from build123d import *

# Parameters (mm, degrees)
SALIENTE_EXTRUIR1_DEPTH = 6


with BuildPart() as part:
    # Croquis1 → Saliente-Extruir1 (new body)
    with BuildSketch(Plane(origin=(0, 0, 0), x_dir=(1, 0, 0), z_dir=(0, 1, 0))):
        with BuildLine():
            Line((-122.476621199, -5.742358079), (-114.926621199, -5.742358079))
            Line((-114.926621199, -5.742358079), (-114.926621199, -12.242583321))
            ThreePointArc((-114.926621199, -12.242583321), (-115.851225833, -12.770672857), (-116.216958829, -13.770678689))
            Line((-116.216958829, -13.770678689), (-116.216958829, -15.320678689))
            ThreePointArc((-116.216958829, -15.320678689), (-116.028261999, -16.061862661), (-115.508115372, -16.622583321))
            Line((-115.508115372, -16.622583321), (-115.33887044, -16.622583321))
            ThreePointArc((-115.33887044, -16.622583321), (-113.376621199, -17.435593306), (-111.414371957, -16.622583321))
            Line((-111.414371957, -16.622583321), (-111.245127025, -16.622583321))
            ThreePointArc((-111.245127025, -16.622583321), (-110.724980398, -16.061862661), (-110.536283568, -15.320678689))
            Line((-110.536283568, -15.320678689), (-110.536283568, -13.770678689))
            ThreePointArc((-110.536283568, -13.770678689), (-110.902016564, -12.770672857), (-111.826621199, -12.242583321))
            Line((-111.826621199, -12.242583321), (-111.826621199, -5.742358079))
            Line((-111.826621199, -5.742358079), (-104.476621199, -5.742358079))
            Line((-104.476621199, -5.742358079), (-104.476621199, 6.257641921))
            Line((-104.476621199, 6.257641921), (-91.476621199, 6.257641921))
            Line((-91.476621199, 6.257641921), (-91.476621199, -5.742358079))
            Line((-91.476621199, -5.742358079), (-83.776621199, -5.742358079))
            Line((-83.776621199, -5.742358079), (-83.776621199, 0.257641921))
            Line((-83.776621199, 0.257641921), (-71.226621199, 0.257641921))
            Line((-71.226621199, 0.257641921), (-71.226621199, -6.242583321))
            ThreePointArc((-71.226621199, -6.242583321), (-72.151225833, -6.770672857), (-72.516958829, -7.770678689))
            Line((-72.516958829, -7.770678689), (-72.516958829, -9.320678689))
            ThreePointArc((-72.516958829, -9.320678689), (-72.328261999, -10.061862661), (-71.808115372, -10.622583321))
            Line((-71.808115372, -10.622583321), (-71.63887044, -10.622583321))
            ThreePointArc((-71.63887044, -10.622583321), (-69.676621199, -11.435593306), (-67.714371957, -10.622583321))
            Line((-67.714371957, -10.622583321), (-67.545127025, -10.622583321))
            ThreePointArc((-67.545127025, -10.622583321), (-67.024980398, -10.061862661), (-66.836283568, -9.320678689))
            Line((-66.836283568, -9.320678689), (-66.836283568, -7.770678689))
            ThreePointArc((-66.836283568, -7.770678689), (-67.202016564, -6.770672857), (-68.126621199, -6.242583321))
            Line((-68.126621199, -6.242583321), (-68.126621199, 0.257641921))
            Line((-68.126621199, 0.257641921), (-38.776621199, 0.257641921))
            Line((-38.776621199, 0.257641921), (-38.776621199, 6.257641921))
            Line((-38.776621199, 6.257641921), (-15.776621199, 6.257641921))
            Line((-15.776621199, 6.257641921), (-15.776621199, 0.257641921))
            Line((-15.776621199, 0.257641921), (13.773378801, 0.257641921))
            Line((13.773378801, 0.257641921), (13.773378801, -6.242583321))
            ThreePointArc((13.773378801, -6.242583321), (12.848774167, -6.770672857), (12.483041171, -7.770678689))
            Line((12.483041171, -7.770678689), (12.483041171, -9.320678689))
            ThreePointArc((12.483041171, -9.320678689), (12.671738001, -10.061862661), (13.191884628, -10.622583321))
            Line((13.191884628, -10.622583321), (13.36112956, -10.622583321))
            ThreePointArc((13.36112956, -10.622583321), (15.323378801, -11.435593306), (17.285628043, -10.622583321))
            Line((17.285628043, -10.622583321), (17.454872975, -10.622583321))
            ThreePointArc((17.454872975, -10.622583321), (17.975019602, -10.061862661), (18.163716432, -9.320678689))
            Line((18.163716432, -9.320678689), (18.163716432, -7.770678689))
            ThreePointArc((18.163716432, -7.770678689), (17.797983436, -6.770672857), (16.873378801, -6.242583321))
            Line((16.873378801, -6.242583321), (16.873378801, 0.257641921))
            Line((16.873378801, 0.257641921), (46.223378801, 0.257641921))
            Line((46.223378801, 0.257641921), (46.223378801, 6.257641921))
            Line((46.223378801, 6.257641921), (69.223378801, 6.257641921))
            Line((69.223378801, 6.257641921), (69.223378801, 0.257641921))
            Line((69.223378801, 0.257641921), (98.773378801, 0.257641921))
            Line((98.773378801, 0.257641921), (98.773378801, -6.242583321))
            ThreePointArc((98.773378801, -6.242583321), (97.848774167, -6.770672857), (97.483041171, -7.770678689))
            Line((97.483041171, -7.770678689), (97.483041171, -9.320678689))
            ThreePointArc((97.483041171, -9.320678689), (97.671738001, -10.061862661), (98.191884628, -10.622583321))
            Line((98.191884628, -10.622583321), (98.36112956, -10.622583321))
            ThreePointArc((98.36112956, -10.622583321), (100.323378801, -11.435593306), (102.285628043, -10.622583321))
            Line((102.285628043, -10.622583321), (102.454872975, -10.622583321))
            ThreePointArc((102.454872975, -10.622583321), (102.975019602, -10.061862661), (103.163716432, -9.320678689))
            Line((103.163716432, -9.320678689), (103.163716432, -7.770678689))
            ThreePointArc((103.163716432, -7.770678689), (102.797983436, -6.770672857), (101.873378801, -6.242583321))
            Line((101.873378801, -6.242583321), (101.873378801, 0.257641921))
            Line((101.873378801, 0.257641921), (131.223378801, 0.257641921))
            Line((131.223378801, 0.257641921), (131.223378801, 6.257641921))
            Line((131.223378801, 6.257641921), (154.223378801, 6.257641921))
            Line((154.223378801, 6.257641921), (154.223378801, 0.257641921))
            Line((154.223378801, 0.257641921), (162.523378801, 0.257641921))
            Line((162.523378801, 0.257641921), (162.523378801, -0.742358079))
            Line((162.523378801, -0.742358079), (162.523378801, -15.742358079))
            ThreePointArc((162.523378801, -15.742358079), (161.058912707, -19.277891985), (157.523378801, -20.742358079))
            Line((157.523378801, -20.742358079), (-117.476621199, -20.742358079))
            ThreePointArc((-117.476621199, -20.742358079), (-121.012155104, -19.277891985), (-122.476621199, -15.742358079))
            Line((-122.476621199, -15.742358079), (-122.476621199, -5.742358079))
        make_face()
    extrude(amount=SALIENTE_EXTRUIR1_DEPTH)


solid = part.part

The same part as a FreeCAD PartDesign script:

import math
import FreeCAD as App
import Part
import Sketcher

doc = App.newDocument("Part")
params = doc.addObject("Spreadsheet::Sheet", "Params")
for row, (alias, value) in enumerate([
    ("sketch1_radius", "5 mm"),
    ("sketch1_width", "275 mm"),
    ("sketch1_width2", "23 mm"),
    ("sketch1_width3", "13 mm"),
    ("sketch1_height", "10 mm"),
    ("pad1_length", "6 mm"),
], start=1):
    params.set(f"A{row}", alias)
    params.set(f"B{row}", "=" + value)
    params.setAlias(f"B{row}", alias)

body = doc.addObject("PartDesign::Body", "Body")

# Sketch on XZ plane
sketch1 = body.newObject("Sketcher::SketchObject", "Sketch")
sketch1.AttachmentSupport = (doc.getObject("XZ_Plane"), [""])
sketch1.MapMode = "FlatFace"
sketch1.addGeometry([
    Part.LineSegment(App.Vector(-114.926621, 5.742358, 0), App.Vector(-122.476621, 5.742358, 0)),  # 0
    Part.LineSegment(App.Vector(-122.476621, 5.742358, 0), App.Vector(-122.476621, 15.742358, 0)),  # 1
    Part.ArcOfCircle(Part.Circle(App.Vector(-117.476621, 15.742358, 0), App.Vector(0, 0, 1), 5), math.radians(90), math.radians(180)),  # 2
    Part.LineSegment(App.Vector(-117.476621, 20.742358, 0), App.Vector(157.523379, 20.742358, 0)),  # 3
    Part.ArcOfCircle(Part.Circle(App.Vector(157.523379, 15.742358, 0), App.Vector(0, 0, 1), 5), math.radians(0), math.radians(90)),  # 4
    Part.LineSegment(App.Vector(162.523379, 15.742358, 0), App.Vector(162.523379, -0.257642, 0)),  # 5
    Part.LineSegment(App.Vector(162.523379, -0.257642, 0), App.Vector(154.223379, -0.257642, 0)),  # 6
    Part.LineSegment(App.Vector(154.223379, -0.257642, 0), App.Vector(154.223379, -6.257642, 0)),  # 7
    Part.LineSegment(App.Vector(154.223379, -6.257642, 0), App.Vector(131.223379, -6.257642, 0)),  # 8
    Part.LineSegment(App.Vector(131.223379, -6.257642, 0), App.Vector(131.223379, -0.257642, 0)),  # 9
    Part.LineSegment(App.Vector(131.223379, -0.257642, 0), App.Vector(101.873379, -0.257642, 0)),  # 10
    Part.LineSegment(App.Vector(101.873379, -0.257642, 0), App.Vector(101.873379, 6.242583, 0)),  # 11
    Part.ArcOfCircle(Part.Circle(App.Vector(101.613716, 7.770679, 0), App.Vector(0, 0, 1), 1.55), math.radians(-80.356103), math.radians(0)),  # 12
    Part.LineSegment(App.Vector(103.163716, 7.770679, 0), App.Vector(103.163716, 9.320679, 0)),  # 13
    Part.ArcOfCircle(Part.Circle(App.Vector(101.613716, 9.320679, 0), App.Vector(0, 0, 1), 1.55), math.radians(0), math.radians(57.133623)),  # 14
    Part.LineSegment(App.Vector(102.454873, 10.622583, 0), App.Vector(102.285628, 10.622583, 0)),  # 15
    Part.ArcOfCircle(Part.Circle(App.Vector(100.323379, 8.661084, 0), App.Vector(0, 0, 1), 2.774509), math.radians(44.989047), math.radians(135.010953)),  # 16
    Part.LineSegment(App.Vector(98.36113, 10.622583, 0), App.Vector(98.191885, 10.622583, 0)),  # 17
    Part.ArcOfCircle(Part.Circle(App.Vector(99.033041, 9.320679, 0), App.Vector(0, 0, 1), 1.55), math.radians(122.866377), math.radians(180)),  # 18
    Part.LineSegment(App.Vector(97.483041, 9.320679, 0), App.Vector(97.483041, 7.770679, 0)),  # 19
    Part.ArcOfCircle(Part.Circle(App.Vector(99.033041, 7.770679, 0), App.Vector(0, 0, 1), 1.55), math.radians(180), math.radians(260.356103)),  # 20
    Part.LineSegment(App.Vector(98.773379, 6.242583, 0), App.Vector(98.773379, -0.257642, 0)),  # 21
    Part.LineSegment(App.Vector(98.773379, -0.257642, 0), App.Vector(69.223379, -0.257642, 0)),  # 22
    Part.LineSegment(App.Vector(69.223379, -0.257642, 0), App.Vector(69.223379, -6.257642, 0)),  # 23
    Part.LineSegment(App.Vector(69.223379, -6.257642, 0), App.Vector(46.223379, -6.257642, 0)),  # 24
    Part.LineSegment(App.Vector(46.223379, -6.257642, 0), App.Vector(46.223379, -0.257642, 0)),  # 25
    Part.LineSegment(App.Vector(46.223379, -0.257642, 0), App.Vector(16.873379, -0.257642, 0)),  # 26
    Part.LineSegment(App.Vector(16.873379, -0.257642, 0), App.Vector(16.873379, 6.242583, 0)),  # 27
    Part.ArcOfCircle(Part.Circle(App.Vector(16.613716, 7.770679, 0), App.Vector(0, 0, 1), 1.55), math.radians(-80.356103), math.radians(0)),  # 28
    Part.LineSegment(App.Vector(18.163716, 7.770679, 0), App.Vector(18.163716, 9.320679, 0)),  # 29
    Part.ArcOfCircle(Part.Circle(App.Vector(16.613716, 9.320679, 0), App.Vector(0, 0, 1), 1.55), math.radians(0), math.radians(57.133623)),  # 30
    Part.LineSegment(App.Vector(17.454873, 10.622583, 0), App.Vector(17.285628, 10.622583, 0)),  # 31
    Part.ArcOfCircle(Part.Circle(App.Vector(15.323379, 8.661084, 0), App.Vector(0, 0, 1), 2.774509), math.radians(44.989047), math.radians(135.010953)),  # 32
    Part.LineSegment(App.Vector(13.36113, 10.622583, 0), App.Vector(13.191885, 10.622583, 0)),  # 33
    Part.ArcOfCircle(Part.Circle(App.Vector(14.033041, 9.320679, 0), App.Vector(0, 0, 1), 1.55), math.radians(122.866377), math.radians(180)),  # 34
    Part.LineSegment(App.Vector(12.483041, 9.320679, 0), App.Vector(12.483041, 7.770679, 0)),  # 35
    Part.ArcOfCircle(Part.Circle(App.Vector(14.033041, 7.770679, 0), App.Vector(0, 0, 1), 1.55), math.radians(180), math.radians(260.356103)),  # 36
    Part.LineSegment(App.Vector(13.773379, 6.242583, 0), App.Vector(13.773379, -0.257642, 0)),  # 37
    Part.LineSegment(App.Vector(13.773379, -0.257642, 0), App.Vector(-15.776621, -0.257642, 0)),  # 38
    Part.LineSegment(App.Vector(-15.776621, -0.257642, 0), App.Vector(-15.776621, -6.257642, 0)),  # 39
    Part.LineSegment(App.Vector(-15.776621, -6.257642, 0), App.Vector(-38.776621, -6.257642, 0)),  # 40
    Part.LineSegment(App.Vector(-38.776621, -6.257642, 0), App.Vector(-38.776621, -0.257642, 0)),  # 41
    Part.LineSegment(App.Vector(-38.776621, -0.257642, 0), App.Vector(-68.126621, -0.257642, 0)),  # 42
    Part.LineSegment(App.Vector(-68.126621, -0.257642, 0), App.Vector(-68.126621, 6.242583, 0)),  # 43
    Part.ArcOfCircle(Part.Circle(App.Vector(-68.386284, 7.770679, 0), App.Vector(0, 0, 1), 1.55), math.radians(-80.356103), math.radians(0)),  # 44
    Part.LineSegment(App.Vector(-66.836284, 7.770679, 0), App.Vector(-66.836284, 9.320679, 0)),  # 45
    Part.ArcOfCircle(Part.Circle(App.Vector(-68.386284, 9.320679, 0), App.Vector(0, 0, 1), 1.55), math.radians(0), math.radians(57.133623)),  # 46
    Part.LineSegment(App.Vector(-67.545127, 10.622583, 0), App.Vector(-67.714372, 10.622583, 0)),  # 47
    Part.ArcOfCircle(Part.Circle(App.Vector(-69.676621, 8.661084, 0), App.Vector(0, 0, 1), 2.774509), math.radians(44.989047), math.radians(135.010953)),  # 48
    Part.LineSegment(App.Vector(-71.63887, 10.622583, 0), App.Vector(-71.808115, 10.622583, 0)),  # 49
    Part.ArcOfCircle(Part.Circle(App.Vector(-70.966959, 9.320679, 0), App.Vector(0, 0, 1), 1.55), math.radians(122.866377), math.radians(180)),  # 50
    Part.LineSegment(App.Vector(-72.516959, 9.320679, 0), App.Vector(-72.516959, 7.770679, 0)),  # 51
    Part.ArcOfCircle(Part.Circle(App.Vector(-70.966959, 7.770679, 0), App.Vector(0, 0, 1), 1.55), math.radians(180), math.radians(260.356103)),  # 52
    Part.LineSegment(App.Vector(-71.226621, 6.242583, 0), App.Vector(-71.226621, -0.257642, 0)),  # 53
    Part.LineSegment(App.Vector(-71.226621, -0.257642, 0), App.Vector(-83.776621, -0.257642, 0)),  # 54
    Part.LineSegment(App.Vector(-83.776621, -0.257642, 0), App.Vector(-83.776621, 5.742358, 0)),  # 55
    Part.LineSegment(App.Vector(-83.776621, 5.742358, 0), App.Vector(-91.476621, 5.742358, 0)),  # 56
    Part.LineSegment(App.Vector(-91.476621, 5.742358, 0), App.Vector(-91.476621, -6.257642, 0)),  # 57
    Part.LineSegment(App.Vector(-91.476621, -6.257642, 0), App.Vector(-104.476621, -6.257642, 0)),  # 58
    Part.LineSegment(App.Vector(-104.476621, -6.257642, 0), App.Vector(-104.476621, 5.742358, 0)),  # 59
    Part.LineSegment(App.Vector(-104.476621, 5.742358, 0), App.Vector(-111.826621, 5.742358, 0)),  # 60
    Part.LineSegment(App.Vector(-111.826621, 5.742358, 0), App.Vector(-111.826621, 12.242583, 0)),  # 61
    Part.ArcOfCircle(Part.Circle(App.Vector(-112.086284, 13.770679, 0), App.Vector(0, 0, 1), 1.55), math.radians(-80.356103), math.radians(0)),  # 62
    Part.LineSegment(App.Vector(-110.536284, 13.770679, 0), App.Vector(-110.536284, 15.320679, 0)),  # 63
    Part.ArcOfCircle(Part.Circle(App.Vector(-112.086284, 15.320679, 0), App.Vector(0, 0, 1), 1.55), math.radians(0), math.radians(57.133623)),  # 64
    Part.LineSegment(App.Vector(-111.245127, 16.622583, 0), App.Vector(-111.414372, 16.622583, 0)),  # 65
    Part.ArcOfCircle(Part.Circle(App.Vector(-113.376621, 14.661084, 0), App.Vector(0, 0, 1), 2.774509), math.radians(44.989047), math.radians(135.010953)),  # 66
    Part.LineSegment(App.Vector(-115.33887, 16.622583, 0), App.Vector(-115.508115, 16.622583, 0)),  # 67
    Part.ArcOfCircle(Part.Circle(App.Vector(-114.666959, 15.320679, 0), App.Vector(0, 0, 1), 1.55), math.radians(122.866377), math.radians(180)),  # 68
    Part.LineSegment(App.Vector(-116.216959, 15.320679, 0), App.Vector(-116.216959, 13.770679, 0)),  # 69
    Part.ArcOfCircle(Part.Circle(App.Vector(-114.666959, 13.770679, 0), App.Vector(0, 0, 1), 1.55), math.radians(180), math.radians(260.356103)),  # 70
    Part.LineSegment(App.Vector(-114.926621, 12.242583, 0), App.Vector(-114.926621, 5.742358, 0)),  # 71
], False)
sketch1.addConstraint([
    Sketcher.Constraint("Coincident", 0, 2, 1, 1),
    Sketcher.Constraint("Tangent", 1, 2, 2, 2),
    Sketcher.Constraint("Tangent", 2, 1, 3, 1),
    Sketcher.Constraint("Tangent", 3, 2, 4, 2),
    Sketcher.Constraint("Tangent", 4, 1, 5, 1),
    Sketcher.Constraint("Coincident", 5, 2, 6, 1),
    Sketcher.Constraint("Coincident", 6, 2, 7, 1),
    Sketcher.Constraint("Coincident", 7, 2, 8, 1),
    Sketcher.Constraint("Coincident", 8, 2, 9, 1),
    Sketcher.Constraint("Coincident", 9, 2, 10, 1),
    Sketcher.Constraint("Coincident", 10, 2, 11, 1),
    Sketcher.Constraint("Coincident", 11, 2, 12, 1),
    Sketcher.Constraint("Tangent", 12, 2, 13, 1),
    Sketcher.Constraint("Tangent", 13, 2, 14, 1),
    Sketcher.Constraint("Coincident", 14, 2, 15, 1),
    Sketcher.Constraint("Coincident", 15, 2, 16, 1),
    Sketcher.Constraint("Coincident", 16, 2, 17, 1),
    Sketcher.Constraint("Coincident", 17, 2, 18, 1),
    Sketcher.Constraint("Tangent", 18, 2, 19, 1),
    Sketcher.Constraint("Tangent", 19, 2, 20, 1),
    Sketcher.Constraint("Coincident", 20, 2, 21, 1),
    Sketcher.Constraint("Coincident", 21, 2, 22, 1),
    Sketcher.Constraint("Coincident", 22, 2, 23, 1),
    Sketcher.Constraint("Coincident", 23, 2, 24, 1),
    Sketcher.Constraint("Coincident", 24, 2, 25, 1),
    Sketcher.Constraint("Coincident", 25, 2, 26, 1),
    Sketcher.Constraint("Coincident", 26, 2, 27, 1),
    Sketcher.Constraint("Coincident", 27, 2, 28, 1),
    Sketcher.Constraint("Tangent", 28, 2, 29, 1),
    Sketcher.Constraint("Tangent", 29, 2, 30, 1),
    Sketcher.Constraint("Coincident", 30, 2, 31, 1),
    Sketcher.Constraint("Coincident", 31, 2, 32, 1),
    Sketcher.Constraint("Coincident", 32, 2, 33, 1),
    Sketcher.Constraint("Coincident", 33, 2, 34, 1),
    Sketcher.Constraint("Tangent", 34, 2, 35, 1),
    Sketcher.Constraint("Tangent", 35, 2, 36, 1),
    Sketcher.Constraint("Coincident", 36, 2, 37, 1),
    Sketcher.Constraint("Coincident", 37, 2, 38, 1),
    Sketcher.Constraint("Coincident", 38, 2, 39, 1),
    Sketcher.Constraint("Coincident", 39, 2, 40, 1),
    Sketcher.Constraint("Coincident", 40, 2, 41, 1),
    Sketcher.Constraint("Coincident", 41, 2, 42, 1),
    Sketcher.Constraint("Coincident", 42, 2, 43, 1),
    Sketcher.Constraint("Coincident", 43, 2, 44, 1),
    Sketcher.Constraint("Tangent", 44, 2, 45, 1),
    Sketcher.Constraint("Tangent", 45, 2, 46, 1),
    Sketcher.Constraint("Coincident", 46, 2, 47, 1),
    Sketcher.Constraint("Coincident", 47, 2, 48, 1),
    Sketcher.Constraint("Coincident", 48, 2, 49, 1),
    Sketcher.Constraint("Coincident", 49, 2, 50, 1),
    Sketcher.Constraint("Tangent", 50, 2, 51, 1),
    Sketcher.Constraint("Tangent", 51, 2, 52, 1),
    Sketcher.Constraint("Coincident", 52, 2, 53, 1),
    Sketcher.Constraint("Coincident", 53, 2, 54, 1),
    Sketcher.Constraint("Coincident", 54, 2, 55, 1),
    Sketcher.Constraint("Coincident", 55, 2, 56, 1),
    Sketcher.Constraint("Coincident", 56, 2, 57, 1),
    Sketcher.Constraint("Coincident", 57, 2, 58, 1),
    Sketcher.Constraint("Coincident", 58, 2, 59, 1),
    Sketcher.Constraint("Coincident", 59, 2, 60, 1),
    Sketcher.Constraint("Coincident", 60, 2, 61, 1),
    Sketcher.Constraint("Coincident", 61, 2, 62, 1),
    Sketcher.Constraint("Tangent", 62, 2, 63, 1),
    Sketcher.Constraint("Tangent", 63, 2, 64, 1),
    Sketcher.Constraint("Coincident", 64, 2, 65, 1),
    Sketcher.Constraint("Coincident", 65, 2, 66, 1),
    Sketcher.Constraint("Coincident", 66, 2, 67, 1),
    Sketcher.Constraint("Coincident", 67, 2, 68, 1),
    Sketcher.Constraint("Tangent", 68, 2, 69, 1),
    Sketcher.Constraint("Tangent", 69, 2, 70, 1),
    Sketcher.Constraint("Coincident", 70, 2, 71, 1),
    Sketcher.Constraint("Coincident", 71, 2, 0, 1),
    Sketcher.Constraint("Horizontal", 0),
    Sketcher.Constraint("Vertical", 1),
    Sketcher.Constraint("Horizontal", 3),
    Sketcher.Constraint("Vertical", 5),
    Sketcher.Constraint("Horizontal", 6),
    Sketcher.Constraint("Vertical", 7),
    Sketcher.Constraint("Horizontal", 8),
    Sketcher.Constraint("Vertical", 9),
    Sketcher.Constraint("Horizontal", 10),
    Sketcher.Constraint("Vertical", 11),
    Sketcher.Constraint("Vertical", 13),
    Sketcher.Constraint("Horizontal", 15),
    Sketcher.Constraint("Horizontal", 17),
    Sketcher.Constraint("Vertical", 19),
    Sketcher.Constraint("Vertical", 21),
    Sketcher.Constraint("Horizontal", 22),
    Sketcher.Constraint("Vertical", 23),
    Sketcher.Constraint("Horizontal", 24),
    Sketcher.Constraint("Vertical", 25),
    Sketcher.Constraint("Horizontal", 26),
    Sketcher.Constraint("Vertical", 27),
    Sketcher.Constraint("Vertical", 29),
    Sketcher.Constraint("Horizontal", 31),
    Sketcher.Constraint("Horizontal", 33),
    Sketcher.Constraint("Vertical", 35),
    Sketcher.Constraint("Vertical", 37),
    Sketcher.Constraint("Horizontal", 38),
    Sketcher.Constraint("Vertical", 39),
    Sketcher.Constraint("Horizontal", 40),
    Sketcher.Constraint("Vertical", 41),
    Sketcher.Constraint("Horizontal", 42),
    Sketcher.Constraint("Vertical", 43),
    Sketcher.Constraint("Vertical", 45),
    Sketcher.Constraint("Horizontal", 47),
    Sketcher.Constraint("Horizontal", 49),
    Sketcher.Constraint("Vertical", 51),
    Sketcher.Constraint("Vertical", 53),
    Sketcher.Constraint("Horizontal", 54),
    Sketcher.Constraint("Vertical", 55),
    Sketcher.Constraint("Horizontal", 56),
    Sketcher.Constraint("Vertical", 57),
    Sketcher.Constraint("Horizontal", 58),
    Sketcher.Constraint("Vertical", 59),
    Sketcher.Constraint("Horizontal", 60),
    Sketcher.Constraint("Vertical", 61),
    Sketcher.Constraint("Vertical", 63),
    Sketcher.Constraint("Horizontal", 65),
    Sketcher.Constraint("Horizontal", 67),
    Sketcher.Constraint("Vertical", 69),
    Sketcher.Constraint("Vertical", 71),
    Sketcher.Constraint("Equal", 2, 4),
    Sketcher.Constraint("Equal", 12, 14),
    Sketcher.Constraint("Equal", 14, 18),
    Sketcher.Constraint("Equal", 18, 20),
    Sketcher.Constraint("Equal", 20, 28),
    Sketcher.Constraint("Equal", 28, 30),
    Sketcher.Constraint("Equal", 16, 32),
    Sketcher.Constraint("Equal", 30, 34),
    Sketcher.Constraint("Equal", 34, 36),
    Sketcher.Constraint("Equal", 36, 44),
    Sketcher.Constraint("Equal", 44, 46),
    Sketcher.Constraint("Equal", 32, 48),
    Sketcher.Constraint("Equal", 46, 50),
    Sketcher.Constraint("Equal", 50, 52),
    Sketcher.Constraint("Equal", 52, 62),
    Sketcher.Constraint("Equal", 62, 64),
    Sketcher.Constraint("Equal", 48, 66),
    Sketcher.Constraint("Equal", 64, 68),
    Sketcher.Constraint("Equal", 68, 70),
    Sketcher.Constraint("Horizontal", 14, 3, 18, 3),
    Sketcher.Constraint("Horizontal", 12, 3, 20, 3),
    Sketcher.Constraint("Horizontal", 20, 3, 28, 3),
    Sketcher.Constraint("Horizontal", 18, 3, 30, 3),
    Sketcher.Constraint("Horizontal", 16, 3, 32, 3),
    Sketcher.Constraint("Horizontal", 30, 3, 34, 3),
    Sketcher.Constraint("Horizontal", 28, 3, 36, 3),
    Sketcher.Constraint("Horizontal", 36, 3, 44, 3),
    Sketcher.Constraint("Horizontal", 34, 3, 46, 3),
    Sketcher.Constraint("Horizontal", 32, 3, 48, 3),
    Sketcher.Constraint("Horizontal", 46, 3, 50, 3),
    Sketcher.Constraint("Horizontal", 44, 3, 52, 3),
    Sketcher.Constraint("Horizontal", 64, 3, 68, 3),
    Sketcher.Constraint("Horizontal", 62, 3, 70, 3),
    Sketcher.Constraint("Horizontal", 6, 2, 9, 2),
    Sketcher.Constraint("Horizontal", 15, 2, 16, 2),
    Sketcher.Constraint("Horizontal", 11, 2, 20, 2),
    Sketcher.Constraint("Horizontal", 10, 2, 21, 2),
    Sketcher.Constraint("Horizontal", 8, 2, 23, 2),
    Sketcher.Constraint("Horizontal", 22, 2, 25, 2),
    Sketcher.Constraint("Horizontal", 20, 2, 27, 2),
    Sketcher.Constraint("Horizontal", 17, 2, 30, 2),
    Sketcher.Constraint("Horizontal", 31, 2, 32, 2),
    Sketcher.Constraint("Horizontal", 27, 2, 36, 2),
    Sketcher.Constraint("Horizontal", 26, 2, 37, 2),
    Sketcher.Constraint("Horizontal", 24, 2, 39, 2),
    Sketcher.Constraint("Horizontal", 38, 2, 41, 2),
    Sketcher.Constraint("Horizontal", 36, 2, 43, 2),
    Sketcher.Constraint("Horizontal", 33, 2, 46, 2),
    Sketcher.Constraint("Horizontal", 47, 2, 48, 2),
    Sketcher.Constraint("Horizontal", 43, 2, 52, 2),
    Sketcher.Constraint("Horizontal", 42, 2, 53, 2),
    Sketcher.Constraint("Horizontal", 0, 2, 55, 2),
    Sketcher.Constraint("Horizontal", 40, 2, 57, 2),
    Sketcher.Constraint("Horizontal", 56, 2, 59, 2),
    Sketcher.Constraint("Horizontal", 65, 2, 66, 2),
    Sketcher.Constraint("Horizontal", 61, 2, 70, 2),
    Sketcher.Constraint("Equal", 15, 17),
    Sketcher.Constraint("Equal", 8, 24),
    Sketcher.Constraint("Equal", 10, 26),
    Sketcher.Constraint("Equal", 17, 31),
    Sketcher.Constraint("Equal", 31, 33),
    Sketcher.Constraint("Equal", 22, 38),
    Sketcher.Constraint("Equal", 24, 40),
    Sketcher.Constraint("Equal", 26, 42),
    Sketcher.Constraint("Equal", 33, 47),
    Sketcher.Constraint("Equal", 47, 49),
    Sketcher.Constraint("Equal", 49, 65),
    Sketcher.Constraint("Equal", 65, 67),
    Sketcher.Constraint("Equal", 41, 55),
    Sketcher.Constraint("Equal", 53, 61),
    Sketcher.Constraint("Equal", 51, 63),
    Sketcher.Constraint("Radius", 2, 5.0),
    Sketcher.Constraint("DistanceX", 3, 1, 3, 2, 275.0),
    Sketcher.Constraint("DistanceX", 8, 2, 8, 1, 23.0),
    Sketcher.Constraint("DistanceX", 58, 2, 58, 1, 13.0),
    Sketcher.Constraint("DistanceY", 1, 1, 1, 2, 10.0),
    Sketcher.Constraint("DistanceY", 5, 2, 5, 1, 16.0),
    Sketcher.Constraint("Radius", 12, 1.55),
    Sketcher.Constraint("DistanceX", 6, 2, 6, 1, 8.3),
    Sketcher.Constraint("DistanceX", 56, 2, 56, 1, 7.7),
    Sketcher.Constraint("DistanceX", 0, 2, 0, 1, 7.55),
    Sketcher.Constraint("DistanceX", 10, 2, 10, 1, 29.35),
    Sketcher.Constraint("DistanceX", 22, 2, 22, 1, 29.55),
    Sketcher.Constraint("DistanceX", 54, 2, 54, 1, 12.55),
    Sketcher.Constraint("DistanceX", 60, 2, 60, 1, 7.35),
    Sketcher.Constraint("DistanceY", 13, 1, 13, 2, 1.55),
    Sketcher.Constraint("Radius", 16, 2.774509),
    Sketcher.Constraint("DistanceX", 15, 2, 15, 1, 0.169245),
    Sketcher.Constraint("DistanceY", 11, 1, 11, 2, 6.500225),
    Sketcher.Constraint("DistanceX", 2, 3, -1, 1, 117.476621),
    Sketcher.Constraint("DistanceY", -1, 1, 2, 3, 15.742358),
    Sketcher.Constraint("DistanceY", -1, 1, 12, 3, 7.770679),
    Sketcher.Constraint("DistanceX", -1, 1, 16, 3, 100.323379),
    Sketcher.Constraint("DistanceY", -1, 1, 62, 3, 13.770679),
    Sketcher.Constraint("DistanceX", -1, 1, 15, 2, 102.285628),
    Sketcher.Constraint("DistanceX", 65, 2, -1, 1, 111.414372),
])
sketch1.setExpression("Constraints[193]", "Params.sketch1_radius")
sketch1.setExpression("Constraints[194]", "Params.sketch1_width")
sketch1.setExpression("Constraints[195]", "Params.sketch1_width2")
sketch1.setExpression("Constraints[196]", "Params.sketch1_width3")
sketch1.setExpression("Constraints[197]", "Params.sketch1_height")
pad1 = body.newObject("PartDesign::Pad", "Pad")
pad1.Profile = sketch1
pad1.setExpression("Length", "Params.pad1_length")
pad1.Reversed = True

doc.recompute()
